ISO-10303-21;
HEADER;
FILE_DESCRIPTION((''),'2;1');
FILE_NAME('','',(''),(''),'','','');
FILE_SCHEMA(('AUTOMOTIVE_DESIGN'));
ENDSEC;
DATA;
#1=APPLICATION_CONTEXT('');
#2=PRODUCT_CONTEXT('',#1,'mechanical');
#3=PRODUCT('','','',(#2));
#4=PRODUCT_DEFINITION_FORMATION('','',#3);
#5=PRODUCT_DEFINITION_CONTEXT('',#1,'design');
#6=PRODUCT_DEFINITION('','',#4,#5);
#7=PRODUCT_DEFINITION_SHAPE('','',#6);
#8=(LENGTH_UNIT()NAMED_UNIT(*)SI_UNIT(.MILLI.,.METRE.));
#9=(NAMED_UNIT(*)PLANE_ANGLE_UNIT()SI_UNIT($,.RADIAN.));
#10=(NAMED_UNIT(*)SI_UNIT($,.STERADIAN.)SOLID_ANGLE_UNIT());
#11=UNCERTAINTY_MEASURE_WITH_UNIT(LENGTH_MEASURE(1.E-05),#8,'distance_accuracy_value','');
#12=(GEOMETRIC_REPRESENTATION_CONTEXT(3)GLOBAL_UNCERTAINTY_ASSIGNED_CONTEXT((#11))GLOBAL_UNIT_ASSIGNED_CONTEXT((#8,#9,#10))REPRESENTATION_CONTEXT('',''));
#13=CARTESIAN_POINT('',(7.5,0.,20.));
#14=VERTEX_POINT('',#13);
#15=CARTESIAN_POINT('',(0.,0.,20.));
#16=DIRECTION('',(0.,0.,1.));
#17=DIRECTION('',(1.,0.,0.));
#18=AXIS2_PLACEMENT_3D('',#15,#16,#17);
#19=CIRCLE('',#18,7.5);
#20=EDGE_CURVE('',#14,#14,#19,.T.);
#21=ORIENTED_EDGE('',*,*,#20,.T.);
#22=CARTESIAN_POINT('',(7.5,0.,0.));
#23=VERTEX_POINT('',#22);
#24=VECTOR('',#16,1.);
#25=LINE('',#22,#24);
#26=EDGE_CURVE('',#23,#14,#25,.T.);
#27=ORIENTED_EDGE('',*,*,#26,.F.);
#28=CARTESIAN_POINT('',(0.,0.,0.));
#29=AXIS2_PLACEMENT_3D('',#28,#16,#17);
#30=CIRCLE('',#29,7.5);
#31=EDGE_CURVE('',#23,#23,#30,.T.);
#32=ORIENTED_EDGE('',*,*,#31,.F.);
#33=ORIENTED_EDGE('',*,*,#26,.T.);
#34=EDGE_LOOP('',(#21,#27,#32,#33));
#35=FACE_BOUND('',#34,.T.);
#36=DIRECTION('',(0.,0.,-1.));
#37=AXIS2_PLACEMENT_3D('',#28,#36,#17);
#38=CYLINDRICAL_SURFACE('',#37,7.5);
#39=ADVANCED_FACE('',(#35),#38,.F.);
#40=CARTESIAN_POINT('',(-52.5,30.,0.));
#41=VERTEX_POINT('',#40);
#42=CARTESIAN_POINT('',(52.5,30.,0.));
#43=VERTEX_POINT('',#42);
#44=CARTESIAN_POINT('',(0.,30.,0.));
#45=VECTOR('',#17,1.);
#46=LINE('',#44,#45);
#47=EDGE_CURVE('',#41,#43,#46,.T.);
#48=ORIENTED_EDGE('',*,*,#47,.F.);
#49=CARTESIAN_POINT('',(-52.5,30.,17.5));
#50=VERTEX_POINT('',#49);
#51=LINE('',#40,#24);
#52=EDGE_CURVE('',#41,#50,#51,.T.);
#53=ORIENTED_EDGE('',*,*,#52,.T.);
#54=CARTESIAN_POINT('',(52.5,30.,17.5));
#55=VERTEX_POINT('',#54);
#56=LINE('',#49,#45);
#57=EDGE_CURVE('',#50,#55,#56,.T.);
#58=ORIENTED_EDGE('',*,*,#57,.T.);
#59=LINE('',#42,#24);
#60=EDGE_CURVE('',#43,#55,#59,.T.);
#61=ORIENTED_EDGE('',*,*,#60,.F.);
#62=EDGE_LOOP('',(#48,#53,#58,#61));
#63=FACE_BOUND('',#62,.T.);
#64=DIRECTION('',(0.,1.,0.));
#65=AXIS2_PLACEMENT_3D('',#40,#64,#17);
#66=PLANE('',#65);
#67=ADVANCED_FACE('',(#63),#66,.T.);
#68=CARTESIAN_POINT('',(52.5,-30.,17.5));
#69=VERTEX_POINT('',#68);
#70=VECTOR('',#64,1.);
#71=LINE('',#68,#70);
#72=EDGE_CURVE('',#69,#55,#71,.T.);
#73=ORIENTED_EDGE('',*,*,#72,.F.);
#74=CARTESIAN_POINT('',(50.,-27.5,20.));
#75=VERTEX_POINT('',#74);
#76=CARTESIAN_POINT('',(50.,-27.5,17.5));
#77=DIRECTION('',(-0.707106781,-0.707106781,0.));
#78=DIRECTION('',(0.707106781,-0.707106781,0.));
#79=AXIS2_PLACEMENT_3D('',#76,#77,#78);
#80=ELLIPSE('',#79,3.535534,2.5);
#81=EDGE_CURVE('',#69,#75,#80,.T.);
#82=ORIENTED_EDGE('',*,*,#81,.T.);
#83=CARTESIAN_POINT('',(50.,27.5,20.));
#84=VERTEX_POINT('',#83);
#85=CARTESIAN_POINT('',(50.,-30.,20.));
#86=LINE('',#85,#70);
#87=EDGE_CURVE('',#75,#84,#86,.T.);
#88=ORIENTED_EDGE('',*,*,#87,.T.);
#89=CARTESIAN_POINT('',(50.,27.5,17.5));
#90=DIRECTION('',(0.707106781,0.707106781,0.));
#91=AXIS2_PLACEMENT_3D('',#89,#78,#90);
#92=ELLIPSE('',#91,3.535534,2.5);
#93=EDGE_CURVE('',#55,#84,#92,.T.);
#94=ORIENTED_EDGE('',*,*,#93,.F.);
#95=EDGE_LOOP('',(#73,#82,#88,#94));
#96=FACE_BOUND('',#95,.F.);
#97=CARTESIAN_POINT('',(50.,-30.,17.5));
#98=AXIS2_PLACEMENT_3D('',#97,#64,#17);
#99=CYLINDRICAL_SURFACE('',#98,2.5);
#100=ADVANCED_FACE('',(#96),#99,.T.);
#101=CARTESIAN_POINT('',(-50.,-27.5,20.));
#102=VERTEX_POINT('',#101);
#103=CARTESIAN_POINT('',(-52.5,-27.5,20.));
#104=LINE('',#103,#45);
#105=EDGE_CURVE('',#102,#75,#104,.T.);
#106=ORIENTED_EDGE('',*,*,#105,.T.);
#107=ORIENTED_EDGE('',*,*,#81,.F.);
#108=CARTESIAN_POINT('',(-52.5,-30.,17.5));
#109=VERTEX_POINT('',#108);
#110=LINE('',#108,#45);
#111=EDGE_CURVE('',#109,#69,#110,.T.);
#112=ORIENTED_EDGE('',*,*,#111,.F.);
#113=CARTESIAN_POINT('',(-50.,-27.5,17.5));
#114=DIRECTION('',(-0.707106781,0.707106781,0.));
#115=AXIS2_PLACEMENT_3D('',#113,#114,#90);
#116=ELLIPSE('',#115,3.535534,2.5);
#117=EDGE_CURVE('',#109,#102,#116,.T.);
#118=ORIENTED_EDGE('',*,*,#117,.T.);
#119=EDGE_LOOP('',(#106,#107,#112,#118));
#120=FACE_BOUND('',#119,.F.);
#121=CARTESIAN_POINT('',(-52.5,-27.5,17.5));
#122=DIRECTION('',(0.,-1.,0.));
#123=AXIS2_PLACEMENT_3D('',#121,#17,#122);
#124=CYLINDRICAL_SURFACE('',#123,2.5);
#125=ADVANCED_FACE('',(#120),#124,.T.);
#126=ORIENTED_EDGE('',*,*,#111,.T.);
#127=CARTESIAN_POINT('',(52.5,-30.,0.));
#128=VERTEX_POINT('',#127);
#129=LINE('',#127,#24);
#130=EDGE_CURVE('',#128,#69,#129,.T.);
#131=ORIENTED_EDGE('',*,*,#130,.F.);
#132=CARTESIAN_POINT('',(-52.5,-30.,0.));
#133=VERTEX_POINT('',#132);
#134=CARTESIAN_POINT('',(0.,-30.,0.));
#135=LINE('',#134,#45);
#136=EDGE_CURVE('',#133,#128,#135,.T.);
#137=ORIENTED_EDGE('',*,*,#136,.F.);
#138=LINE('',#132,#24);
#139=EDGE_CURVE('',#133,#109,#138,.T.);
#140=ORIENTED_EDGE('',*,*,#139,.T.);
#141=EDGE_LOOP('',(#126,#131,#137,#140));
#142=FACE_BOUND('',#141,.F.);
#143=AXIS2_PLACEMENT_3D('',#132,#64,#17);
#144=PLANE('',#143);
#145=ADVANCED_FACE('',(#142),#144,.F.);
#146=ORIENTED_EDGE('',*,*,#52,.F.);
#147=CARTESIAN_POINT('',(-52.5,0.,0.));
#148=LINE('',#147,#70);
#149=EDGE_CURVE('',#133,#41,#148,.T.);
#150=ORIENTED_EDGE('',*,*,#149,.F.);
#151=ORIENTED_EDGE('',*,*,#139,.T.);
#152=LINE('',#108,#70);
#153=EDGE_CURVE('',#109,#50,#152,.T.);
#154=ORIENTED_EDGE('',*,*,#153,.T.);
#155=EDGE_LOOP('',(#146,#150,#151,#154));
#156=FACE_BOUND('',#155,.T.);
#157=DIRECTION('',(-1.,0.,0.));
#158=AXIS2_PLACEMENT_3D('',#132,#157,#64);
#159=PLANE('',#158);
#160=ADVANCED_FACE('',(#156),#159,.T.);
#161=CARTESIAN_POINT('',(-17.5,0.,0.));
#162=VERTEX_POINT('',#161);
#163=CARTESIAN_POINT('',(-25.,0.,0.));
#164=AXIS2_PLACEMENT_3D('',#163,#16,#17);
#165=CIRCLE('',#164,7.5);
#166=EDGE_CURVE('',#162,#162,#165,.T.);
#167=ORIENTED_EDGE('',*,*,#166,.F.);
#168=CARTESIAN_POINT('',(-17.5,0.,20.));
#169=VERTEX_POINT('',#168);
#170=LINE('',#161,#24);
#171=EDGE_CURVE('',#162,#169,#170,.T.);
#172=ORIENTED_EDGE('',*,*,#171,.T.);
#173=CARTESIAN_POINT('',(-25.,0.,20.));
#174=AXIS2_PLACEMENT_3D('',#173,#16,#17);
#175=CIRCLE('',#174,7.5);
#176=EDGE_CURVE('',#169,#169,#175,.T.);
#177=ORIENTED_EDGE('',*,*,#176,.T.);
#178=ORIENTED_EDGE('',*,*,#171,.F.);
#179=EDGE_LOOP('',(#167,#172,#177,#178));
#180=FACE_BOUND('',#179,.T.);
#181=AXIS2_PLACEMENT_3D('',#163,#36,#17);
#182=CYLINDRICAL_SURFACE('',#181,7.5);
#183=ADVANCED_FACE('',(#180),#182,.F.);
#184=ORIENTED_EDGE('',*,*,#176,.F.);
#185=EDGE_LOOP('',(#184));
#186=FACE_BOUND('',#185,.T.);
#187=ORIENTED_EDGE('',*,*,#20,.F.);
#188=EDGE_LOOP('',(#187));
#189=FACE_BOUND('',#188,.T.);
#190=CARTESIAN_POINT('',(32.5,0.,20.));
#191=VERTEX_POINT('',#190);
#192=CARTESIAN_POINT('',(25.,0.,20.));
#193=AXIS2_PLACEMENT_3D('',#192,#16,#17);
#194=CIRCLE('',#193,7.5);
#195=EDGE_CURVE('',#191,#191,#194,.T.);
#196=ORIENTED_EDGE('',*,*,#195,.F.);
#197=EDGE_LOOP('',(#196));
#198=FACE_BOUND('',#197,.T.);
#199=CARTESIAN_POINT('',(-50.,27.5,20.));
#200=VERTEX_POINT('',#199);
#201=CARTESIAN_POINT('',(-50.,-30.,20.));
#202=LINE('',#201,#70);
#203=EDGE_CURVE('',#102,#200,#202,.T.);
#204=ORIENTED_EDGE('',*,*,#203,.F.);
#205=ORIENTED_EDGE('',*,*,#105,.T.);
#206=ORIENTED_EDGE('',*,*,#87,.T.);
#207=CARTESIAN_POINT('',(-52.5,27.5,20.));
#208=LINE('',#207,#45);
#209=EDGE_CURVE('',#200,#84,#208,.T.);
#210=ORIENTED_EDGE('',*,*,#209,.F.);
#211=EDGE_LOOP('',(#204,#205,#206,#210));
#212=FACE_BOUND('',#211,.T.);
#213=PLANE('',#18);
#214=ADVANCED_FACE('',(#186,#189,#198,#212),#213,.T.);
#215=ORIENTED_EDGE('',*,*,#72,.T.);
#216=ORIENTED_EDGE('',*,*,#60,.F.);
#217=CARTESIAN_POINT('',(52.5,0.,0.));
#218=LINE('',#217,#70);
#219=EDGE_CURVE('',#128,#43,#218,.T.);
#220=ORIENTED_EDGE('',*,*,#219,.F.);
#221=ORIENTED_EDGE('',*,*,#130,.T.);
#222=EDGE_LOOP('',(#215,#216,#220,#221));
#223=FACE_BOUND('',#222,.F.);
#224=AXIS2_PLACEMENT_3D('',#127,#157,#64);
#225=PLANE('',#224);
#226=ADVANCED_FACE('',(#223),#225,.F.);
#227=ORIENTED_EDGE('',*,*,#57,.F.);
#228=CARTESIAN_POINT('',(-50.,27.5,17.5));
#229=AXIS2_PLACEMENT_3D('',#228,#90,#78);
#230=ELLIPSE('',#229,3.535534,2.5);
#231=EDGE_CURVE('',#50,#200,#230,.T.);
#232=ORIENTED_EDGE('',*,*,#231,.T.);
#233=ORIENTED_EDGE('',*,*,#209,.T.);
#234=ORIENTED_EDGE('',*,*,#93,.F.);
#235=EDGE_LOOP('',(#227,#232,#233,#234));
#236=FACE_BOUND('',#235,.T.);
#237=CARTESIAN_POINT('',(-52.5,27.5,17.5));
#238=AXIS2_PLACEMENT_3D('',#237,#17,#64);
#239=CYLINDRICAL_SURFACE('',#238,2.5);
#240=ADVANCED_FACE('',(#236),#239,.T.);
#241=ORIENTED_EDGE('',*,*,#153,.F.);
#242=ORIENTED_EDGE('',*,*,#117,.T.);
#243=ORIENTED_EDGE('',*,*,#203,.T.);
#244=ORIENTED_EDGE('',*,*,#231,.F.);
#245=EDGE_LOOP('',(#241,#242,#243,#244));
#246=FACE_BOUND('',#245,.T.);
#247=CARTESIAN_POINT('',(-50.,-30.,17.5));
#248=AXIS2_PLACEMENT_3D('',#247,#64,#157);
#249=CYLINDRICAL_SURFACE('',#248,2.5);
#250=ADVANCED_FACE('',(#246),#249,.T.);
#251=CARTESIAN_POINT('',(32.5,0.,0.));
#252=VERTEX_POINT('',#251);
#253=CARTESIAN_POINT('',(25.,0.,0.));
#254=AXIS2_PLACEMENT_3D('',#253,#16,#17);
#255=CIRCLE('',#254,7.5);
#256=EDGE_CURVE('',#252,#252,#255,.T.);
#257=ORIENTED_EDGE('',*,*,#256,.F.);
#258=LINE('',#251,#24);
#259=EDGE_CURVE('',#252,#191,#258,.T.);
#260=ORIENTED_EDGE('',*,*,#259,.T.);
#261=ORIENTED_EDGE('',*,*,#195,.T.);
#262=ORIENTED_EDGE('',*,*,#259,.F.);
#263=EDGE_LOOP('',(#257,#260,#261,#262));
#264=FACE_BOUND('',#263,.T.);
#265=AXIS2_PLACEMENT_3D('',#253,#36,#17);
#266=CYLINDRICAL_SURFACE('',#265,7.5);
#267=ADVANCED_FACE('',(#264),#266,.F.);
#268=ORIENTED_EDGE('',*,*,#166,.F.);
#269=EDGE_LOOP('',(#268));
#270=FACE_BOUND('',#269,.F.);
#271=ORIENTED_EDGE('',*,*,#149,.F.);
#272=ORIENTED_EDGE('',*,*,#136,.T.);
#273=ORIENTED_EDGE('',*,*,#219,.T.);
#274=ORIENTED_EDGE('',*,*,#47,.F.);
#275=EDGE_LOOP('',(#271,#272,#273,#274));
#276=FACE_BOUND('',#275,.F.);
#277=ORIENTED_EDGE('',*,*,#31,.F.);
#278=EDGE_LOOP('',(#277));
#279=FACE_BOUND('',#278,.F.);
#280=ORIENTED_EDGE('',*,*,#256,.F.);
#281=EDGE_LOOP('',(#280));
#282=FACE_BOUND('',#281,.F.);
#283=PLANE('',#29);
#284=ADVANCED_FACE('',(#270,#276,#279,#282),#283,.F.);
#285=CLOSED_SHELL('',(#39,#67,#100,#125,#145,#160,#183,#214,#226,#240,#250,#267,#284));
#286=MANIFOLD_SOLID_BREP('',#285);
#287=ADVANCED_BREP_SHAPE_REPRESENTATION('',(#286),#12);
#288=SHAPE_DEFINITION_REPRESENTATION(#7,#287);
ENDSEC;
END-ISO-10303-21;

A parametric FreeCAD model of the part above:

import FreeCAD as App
import Part
import Sketcher

V = App.Vector
Q = App.Units.Quantity


def edges_at(feature, points):
    """Names of the edges that pass closest to the given points."""
    edges = feature.Shape.Edges
    near = lambda p: min(range(len(edges)), key=lambda i: edges[i].distToShape(Part.Vertex(*p))[0])
    return sorted({f"Edge{near(p) + 1}" for p in points})

doc = App.newDocument("Part")
body = doc.addObject("PartDesign::Body", "Body")

# Sketch on XY plane
sketch1 = body.newObject("Sketcher::SketchObject", "Sketch")
sketch1.AttachmentSupport = (doc.getObject("XY_Plane"), [""])
sketch1.MapMode = "FlatFace"
sketch1.addGeometry([
    Part.LineSegment(V(-52.5, 30, 0), V(-52.5, -30, 0)),  # 0
    Part.LineSegment(V(-52.5, -30, 0), V(52.5, -30, 0)),  # 1
    Part.LineSegment(V(52.5, -30, 0), V(52.5, 30, 0)),  # 2
    Part.LineSegment(V(52.5, 30, 0), V(-52.5, 30, 0)),  # 3
    Part.Circle(V(-25, 0, 0), V(0, 0, 1), 7.5),  # 4
    Part.Circle(V(0, 0, 0), V(0, 0, 1), 7.5),  # 5
    Part.Circle(V(25, 0, 0), V(0, 0, 1), 7.5),  # 6
], False)
sketch1.addConstraint([
    Sketcher.Constraint("Coincident", 0, 2, 1, 1),
    Sketcher.Constraint("Coincident", 1, 2, 2, 1),
    Sketcher.Constraint("Coincident", 2, 2, 3, 1),
    Sketcher.Constraint("Coincident", 3, 2, 0, 1),
    Sketcher.Constraint("Vertical", 0),
    Sketcher.Constraint("Horizontal", 1),
    Sketcher.Constraint("Vertical", 2),
    Sketcher.Constraint("Horizontal", 3),
    Sketcher.Constraint("Coincident", 5, 3, -1, 1),
    Sketcher.Constraint("Equal", 4, 5),
    Sketcher.Constraint("Equal", 5, 6),
    Sketcher.Constraint("Symmetric", 4, 3, 6, 3, -1, 1),
    Sketcher.Constraint("Symmetric", 0, 2, 2, 2, -1, 1),
    Sketcher.Constraint("PointOnObject", 4, 3, -1),
    Sketcher.Constraint("Diameter", 4, Q("15 mm")),
    Sketcher.Constraint("DistanceX", 1, 1, 1, 2, Q("105 mm")),
    Sketcher.Constraint("DistanceY", 0, 2, 0, 1, Q("60 mm")),
    Sketcher.Constraint("DistanceX", 4, 3, -1, 1, Q("25 mm")),
])
pad1 = body.newObject("PartDesign::Pad", "Pad")
pad1.Profile = sketch1
pad1.Length = 20
doc.recompute()

fillet = body.newObject("PartDesign::Fillet", "Fillet")
fillet.Base = (pad1, edges_at(pad1, [
    (0, 30, 20),
    (-52.5, 0, 20),
    (0, -30, 20),
    (52.5, 0, 20),
]))
fillet.Radius = 2.5

doc.recompute()
